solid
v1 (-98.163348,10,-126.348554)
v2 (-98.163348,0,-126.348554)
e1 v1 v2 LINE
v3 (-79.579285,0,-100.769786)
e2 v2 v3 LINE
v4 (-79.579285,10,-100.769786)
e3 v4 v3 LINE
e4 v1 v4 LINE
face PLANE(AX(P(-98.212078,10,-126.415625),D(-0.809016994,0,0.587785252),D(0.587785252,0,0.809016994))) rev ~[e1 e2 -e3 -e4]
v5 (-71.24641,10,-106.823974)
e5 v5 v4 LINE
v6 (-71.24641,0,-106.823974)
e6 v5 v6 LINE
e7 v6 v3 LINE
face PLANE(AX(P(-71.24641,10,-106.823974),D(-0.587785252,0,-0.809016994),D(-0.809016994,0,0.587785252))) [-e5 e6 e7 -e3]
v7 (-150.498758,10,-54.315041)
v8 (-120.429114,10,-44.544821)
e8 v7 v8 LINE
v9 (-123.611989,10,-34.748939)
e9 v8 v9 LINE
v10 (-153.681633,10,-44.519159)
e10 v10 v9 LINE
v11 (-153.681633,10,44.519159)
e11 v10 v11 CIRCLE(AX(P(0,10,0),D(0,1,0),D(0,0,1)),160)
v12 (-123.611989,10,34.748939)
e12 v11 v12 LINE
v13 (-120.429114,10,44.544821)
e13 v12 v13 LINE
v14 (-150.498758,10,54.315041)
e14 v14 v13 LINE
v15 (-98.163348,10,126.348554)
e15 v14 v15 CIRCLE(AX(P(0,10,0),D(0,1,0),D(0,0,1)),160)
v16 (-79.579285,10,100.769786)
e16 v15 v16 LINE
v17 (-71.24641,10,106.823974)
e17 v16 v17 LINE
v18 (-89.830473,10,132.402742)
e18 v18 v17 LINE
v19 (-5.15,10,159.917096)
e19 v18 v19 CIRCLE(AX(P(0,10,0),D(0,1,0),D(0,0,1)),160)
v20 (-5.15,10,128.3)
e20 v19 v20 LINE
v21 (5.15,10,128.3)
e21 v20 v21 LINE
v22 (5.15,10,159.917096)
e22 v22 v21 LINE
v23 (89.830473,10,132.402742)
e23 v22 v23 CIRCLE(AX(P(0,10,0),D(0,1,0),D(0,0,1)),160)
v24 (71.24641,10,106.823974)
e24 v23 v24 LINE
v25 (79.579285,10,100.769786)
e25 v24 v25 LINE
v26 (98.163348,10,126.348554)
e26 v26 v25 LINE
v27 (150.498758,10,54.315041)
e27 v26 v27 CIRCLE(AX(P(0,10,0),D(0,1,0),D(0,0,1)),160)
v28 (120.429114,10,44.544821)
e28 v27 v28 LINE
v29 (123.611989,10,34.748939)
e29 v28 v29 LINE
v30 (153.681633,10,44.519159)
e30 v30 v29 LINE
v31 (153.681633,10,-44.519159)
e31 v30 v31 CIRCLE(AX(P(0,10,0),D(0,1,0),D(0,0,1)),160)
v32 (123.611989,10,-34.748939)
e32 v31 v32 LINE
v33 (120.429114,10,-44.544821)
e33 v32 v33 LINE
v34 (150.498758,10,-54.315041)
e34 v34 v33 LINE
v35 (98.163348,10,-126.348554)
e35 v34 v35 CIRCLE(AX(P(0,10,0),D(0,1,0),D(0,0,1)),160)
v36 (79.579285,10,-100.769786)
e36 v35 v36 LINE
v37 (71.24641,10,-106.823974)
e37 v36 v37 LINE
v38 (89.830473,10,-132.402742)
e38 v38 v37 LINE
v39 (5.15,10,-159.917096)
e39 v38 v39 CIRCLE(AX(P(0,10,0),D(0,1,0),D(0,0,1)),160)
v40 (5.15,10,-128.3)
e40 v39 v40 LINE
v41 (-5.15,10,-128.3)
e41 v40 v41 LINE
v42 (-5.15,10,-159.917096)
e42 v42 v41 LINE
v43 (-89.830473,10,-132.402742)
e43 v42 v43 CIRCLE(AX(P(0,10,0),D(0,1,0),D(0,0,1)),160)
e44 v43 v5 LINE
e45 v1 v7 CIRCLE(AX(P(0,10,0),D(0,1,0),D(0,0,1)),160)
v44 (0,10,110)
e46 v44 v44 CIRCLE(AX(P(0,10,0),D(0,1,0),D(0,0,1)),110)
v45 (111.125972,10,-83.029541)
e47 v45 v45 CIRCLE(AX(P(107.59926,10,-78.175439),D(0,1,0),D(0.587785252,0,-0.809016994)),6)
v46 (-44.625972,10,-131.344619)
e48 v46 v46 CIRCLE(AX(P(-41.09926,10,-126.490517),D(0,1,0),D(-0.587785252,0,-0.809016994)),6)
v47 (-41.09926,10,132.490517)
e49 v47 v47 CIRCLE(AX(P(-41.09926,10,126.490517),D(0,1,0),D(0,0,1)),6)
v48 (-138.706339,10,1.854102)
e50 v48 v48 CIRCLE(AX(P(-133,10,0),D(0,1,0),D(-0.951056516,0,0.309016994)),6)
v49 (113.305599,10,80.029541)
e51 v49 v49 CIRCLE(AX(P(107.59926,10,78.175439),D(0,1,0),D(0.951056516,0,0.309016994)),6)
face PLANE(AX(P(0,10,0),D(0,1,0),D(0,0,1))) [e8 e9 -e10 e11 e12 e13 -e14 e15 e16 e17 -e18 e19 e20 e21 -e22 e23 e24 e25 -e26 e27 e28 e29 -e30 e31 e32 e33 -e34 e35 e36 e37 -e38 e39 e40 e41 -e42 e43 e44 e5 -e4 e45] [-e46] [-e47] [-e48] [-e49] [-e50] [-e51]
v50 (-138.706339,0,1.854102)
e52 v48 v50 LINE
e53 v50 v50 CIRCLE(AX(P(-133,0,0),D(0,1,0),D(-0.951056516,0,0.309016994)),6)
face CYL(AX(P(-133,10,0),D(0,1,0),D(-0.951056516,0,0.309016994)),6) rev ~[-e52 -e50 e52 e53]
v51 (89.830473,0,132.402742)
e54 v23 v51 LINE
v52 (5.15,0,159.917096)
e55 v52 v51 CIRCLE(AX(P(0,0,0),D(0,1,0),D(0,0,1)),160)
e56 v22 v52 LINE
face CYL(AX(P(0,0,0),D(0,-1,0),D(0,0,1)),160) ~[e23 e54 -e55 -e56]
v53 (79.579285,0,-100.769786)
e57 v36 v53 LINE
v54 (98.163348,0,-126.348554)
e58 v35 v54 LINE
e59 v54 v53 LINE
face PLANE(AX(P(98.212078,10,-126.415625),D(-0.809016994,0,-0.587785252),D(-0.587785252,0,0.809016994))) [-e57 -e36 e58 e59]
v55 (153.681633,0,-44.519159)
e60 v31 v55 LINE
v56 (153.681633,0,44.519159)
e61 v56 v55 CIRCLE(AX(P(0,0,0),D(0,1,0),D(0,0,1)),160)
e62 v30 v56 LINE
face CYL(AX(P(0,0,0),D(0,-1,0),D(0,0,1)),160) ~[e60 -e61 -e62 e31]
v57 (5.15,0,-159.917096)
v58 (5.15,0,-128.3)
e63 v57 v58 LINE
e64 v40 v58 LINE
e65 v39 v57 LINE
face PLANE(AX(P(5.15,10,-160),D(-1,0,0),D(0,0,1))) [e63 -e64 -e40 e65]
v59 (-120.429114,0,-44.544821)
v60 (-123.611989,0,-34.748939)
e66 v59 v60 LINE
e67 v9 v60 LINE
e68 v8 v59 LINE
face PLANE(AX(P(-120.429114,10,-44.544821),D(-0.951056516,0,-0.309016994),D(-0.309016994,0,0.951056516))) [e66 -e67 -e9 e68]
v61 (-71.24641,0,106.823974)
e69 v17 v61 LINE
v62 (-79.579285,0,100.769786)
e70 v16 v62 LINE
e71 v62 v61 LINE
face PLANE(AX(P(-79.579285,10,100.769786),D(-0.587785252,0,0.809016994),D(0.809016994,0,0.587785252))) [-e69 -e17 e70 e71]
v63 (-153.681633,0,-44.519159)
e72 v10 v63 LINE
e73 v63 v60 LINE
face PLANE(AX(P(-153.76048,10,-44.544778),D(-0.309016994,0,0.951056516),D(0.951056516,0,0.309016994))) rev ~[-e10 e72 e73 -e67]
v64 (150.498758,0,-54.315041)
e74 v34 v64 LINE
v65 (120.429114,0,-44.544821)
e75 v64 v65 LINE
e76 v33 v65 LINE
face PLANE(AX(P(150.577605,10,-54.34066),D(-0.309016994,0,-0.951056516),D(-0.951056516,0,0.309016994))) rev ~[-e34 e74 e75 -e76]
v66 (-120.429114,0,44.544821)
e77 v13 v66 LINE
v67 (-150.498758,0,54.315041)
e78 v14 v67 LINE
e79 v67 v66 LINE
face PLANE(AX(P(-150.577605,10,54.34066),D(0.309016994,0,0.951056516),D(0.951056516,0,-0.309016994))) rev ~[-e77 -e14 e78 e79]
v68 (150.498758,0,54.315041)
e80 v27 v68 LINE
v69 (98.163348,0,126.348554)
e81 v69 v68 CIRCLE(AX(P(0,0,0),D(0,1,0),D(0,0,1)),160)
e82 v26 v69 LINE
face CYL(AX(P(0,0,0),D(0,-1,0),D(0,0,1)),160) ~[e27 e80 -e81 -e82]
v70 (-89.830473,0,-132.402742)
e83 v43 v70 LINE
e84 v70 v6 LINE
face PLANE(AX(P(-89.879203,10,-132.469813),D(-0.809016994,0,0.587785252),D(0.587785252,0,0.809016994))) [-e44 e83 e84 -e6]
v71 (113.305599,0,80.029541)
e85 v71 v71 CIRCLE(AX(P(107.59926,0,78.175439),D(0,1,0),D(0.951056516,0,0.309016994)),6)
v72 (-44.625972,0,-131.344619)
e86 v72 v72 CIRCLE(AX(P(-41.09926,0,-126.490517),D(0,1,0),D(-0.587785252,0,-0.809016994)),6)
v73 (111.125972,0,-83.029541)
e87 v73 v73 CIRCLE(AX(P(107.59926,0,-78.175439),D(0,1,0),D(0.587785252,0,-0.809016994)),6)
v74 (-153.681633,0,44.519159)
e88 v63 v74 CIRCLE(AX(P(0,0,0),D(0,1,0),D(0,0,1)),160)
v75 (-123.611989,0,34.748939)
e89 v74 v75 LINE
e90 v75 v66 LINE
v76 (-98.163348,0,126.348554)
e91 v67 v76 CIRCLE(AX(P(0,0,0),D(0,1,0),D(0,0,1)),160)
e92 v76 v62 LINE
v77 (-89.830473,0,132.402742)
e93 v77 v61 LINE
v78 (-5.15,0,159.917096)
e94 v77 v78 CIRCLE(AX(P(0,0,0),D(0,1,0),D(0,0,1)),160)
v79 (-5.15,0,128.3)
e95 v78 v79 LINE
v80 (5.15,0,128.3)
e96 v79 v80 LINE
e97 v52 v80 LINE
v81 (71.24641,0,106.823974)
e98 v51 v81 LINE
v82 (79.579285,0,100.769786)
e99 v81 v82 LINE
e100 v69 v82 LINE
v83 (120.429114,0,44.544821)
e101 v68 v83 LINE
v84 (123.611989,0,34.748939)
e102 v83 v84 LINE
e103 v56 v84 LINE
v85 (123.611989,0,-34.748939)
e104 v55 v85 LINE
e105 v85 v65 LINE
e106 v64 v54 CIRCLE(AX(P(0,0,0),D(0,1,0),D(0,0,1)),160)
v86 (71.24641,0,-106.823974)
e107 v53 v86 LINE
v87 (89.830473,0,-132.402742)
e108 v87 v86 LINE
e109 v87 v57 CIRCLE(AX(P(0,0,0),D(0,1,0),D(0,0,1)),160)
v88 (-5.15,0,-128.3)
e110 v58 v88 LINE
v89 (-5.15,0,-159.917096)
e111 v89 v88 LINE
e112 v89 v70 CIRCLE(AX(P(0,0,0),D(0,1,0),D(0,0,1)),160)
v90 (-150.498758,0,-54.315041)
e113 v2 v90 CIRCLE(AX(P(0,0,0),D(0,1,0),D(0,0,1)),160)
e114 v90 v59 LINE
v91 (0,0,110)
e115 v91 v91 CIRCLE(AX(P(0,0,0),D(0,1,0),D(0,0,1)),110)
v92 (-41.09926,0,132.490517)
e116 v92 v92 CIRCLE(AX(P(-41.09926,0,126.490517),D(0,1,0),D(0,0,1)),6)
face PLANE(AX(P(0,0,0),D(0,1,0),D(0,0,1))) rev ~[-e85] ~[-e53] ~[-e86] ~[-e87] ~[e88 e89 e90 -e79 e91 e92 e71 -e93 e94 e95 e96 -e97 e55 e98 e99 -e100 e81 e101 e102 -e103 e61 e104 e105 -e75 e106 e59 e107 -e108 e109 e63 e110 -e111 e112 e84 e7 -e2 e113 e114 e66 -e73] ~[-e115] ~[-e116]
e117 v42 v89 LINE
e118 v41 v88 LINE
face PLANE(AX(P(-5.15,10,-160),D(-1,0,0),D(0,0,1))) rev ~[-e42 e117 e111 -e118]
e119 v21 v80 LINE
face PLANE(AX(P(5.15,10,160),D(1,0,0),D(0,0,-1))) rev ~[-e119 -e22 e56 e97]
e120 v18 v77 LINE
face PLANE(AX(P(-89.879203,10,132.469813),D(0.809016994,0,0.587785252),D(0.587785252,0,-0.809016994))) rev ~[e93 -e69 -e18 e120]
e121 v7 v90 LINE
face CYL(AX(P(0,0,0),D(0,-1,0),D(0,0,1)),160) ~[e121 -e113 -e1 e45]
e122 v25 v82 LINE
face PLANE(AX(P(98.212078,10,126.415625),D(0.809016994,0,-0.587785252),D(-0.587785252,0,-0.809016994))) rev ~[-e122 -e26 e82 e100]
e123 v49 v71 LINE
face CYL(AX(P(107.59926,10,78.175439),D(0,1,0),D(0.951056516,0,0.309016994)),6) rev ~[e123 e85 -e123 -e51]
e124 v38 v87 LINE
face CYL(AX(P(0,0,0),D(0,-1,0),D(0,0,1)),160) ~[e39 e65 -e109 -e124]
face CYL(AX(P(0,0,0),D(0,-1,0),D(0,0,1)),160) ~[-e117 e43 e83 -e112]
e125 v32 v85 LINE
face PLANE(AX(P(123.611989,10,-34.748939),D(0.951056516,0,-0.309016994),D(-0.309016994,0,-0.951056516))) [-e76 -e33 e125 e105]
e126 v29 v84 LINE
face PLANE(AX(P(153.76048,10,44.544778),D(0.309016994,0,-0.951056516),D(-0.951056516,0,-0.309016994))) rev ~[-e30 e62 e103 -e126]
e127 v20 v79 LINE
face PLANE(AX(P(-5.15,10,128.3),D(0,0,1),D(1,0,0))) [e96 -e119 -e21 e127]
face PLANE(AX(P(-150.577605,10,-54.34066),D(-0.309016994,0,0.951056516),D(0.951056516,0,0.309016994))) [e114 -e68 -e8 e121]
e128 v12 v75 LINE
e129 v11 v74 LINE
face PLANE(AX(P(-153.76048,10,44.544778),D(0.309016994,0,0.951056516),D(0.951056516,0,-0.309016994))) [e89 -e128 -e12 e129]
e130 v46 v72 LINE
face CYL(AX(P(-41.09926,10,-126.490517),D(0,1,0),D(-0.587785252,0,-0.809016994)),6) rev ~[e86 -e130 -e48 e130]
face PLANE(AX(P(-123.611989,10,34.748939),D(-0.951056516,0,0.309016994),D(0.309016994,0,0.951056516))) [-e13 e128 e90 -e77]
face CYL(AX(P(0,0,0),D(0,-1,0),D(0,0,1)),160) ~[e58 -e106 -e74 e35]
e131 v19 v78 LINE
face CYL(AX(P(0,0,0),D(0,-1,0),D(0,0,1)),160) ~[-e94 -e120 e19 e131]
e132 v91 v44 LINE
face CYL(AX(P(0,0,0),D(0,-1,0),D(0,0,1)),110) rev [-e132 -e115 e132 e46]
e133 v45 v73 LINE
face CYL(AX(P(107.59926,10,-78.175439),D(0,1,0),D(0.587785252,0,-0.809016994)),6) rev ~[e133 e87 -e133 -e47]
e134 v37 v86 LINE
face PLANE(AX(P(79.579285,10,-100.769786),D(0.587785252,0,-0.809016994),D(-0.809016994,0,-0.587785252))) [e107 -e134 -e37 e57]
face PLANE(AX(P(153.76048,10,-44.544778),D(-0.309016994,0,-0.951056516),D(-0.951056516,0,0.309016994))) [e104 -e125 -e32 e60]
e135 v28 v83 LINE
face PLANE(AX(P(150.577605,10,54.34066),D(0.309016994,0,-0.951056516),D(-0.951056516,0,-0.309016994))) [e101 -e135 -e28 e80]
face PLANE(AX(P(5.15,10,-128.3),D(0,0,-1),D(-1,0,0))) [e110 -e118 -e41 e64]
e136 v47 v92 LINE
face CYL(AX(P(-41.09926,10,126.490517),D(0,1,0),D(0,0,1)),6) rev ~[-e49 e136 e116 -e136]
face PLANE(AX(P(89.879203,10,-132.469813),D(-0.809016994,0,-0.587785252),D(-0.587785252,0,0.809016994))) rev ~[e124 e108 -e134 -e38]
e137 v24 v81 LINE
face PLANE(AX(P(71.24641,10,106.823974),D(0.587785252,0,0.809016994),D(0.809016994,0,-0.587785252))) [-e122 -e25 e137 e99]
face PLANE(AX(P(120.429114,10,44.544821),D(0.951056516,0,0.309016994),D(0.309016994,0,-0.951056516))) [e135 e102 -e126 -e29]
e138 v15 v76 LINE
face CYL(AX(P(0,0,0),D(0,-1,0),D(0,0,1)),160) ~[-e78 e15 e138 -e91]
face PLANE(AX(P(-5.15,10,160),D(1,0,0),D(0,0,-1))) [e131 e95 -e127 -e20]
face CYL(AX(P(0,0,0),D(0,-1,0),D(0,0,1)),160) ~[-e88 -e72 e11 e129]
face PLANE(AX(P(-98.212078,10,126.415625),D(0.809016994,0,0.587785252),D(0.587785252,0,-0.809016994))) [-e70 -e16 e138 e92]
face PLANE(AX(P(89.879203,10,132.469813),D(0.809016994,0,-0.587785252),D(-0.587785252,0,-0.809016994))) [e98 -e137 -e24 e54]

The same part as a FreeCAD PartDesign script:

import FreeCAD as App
import Part
import Sketcher
from FreeCAD import Vector

doc = App.newDocument("Part")
body = doc.addObject("PartDesign::Body", "Body")

sketch1 = doc.addObject("Sketcher::SketchObject", "Sketch")
body.addObject(sketch1)
sketch1.AttachmentSupport = (doc.XZ_Plane, [""])
sketch1.MapMode = "FlatFace"
sketch1.addGeometry(Part.Circle(Vector(0, 0, 0), Vector(0, 0, 1), 160), False)
sketch1.addGeometry(Part.Circle(Vector(0, 0, 0), Vector(0, 0, 1), 110), False)
sketch1.addConstraint(Sketcher.Constraint("Coincident", 0, 3, -1, 1))
sketch1.addConstraint(Sketcher.Constraint("Coincident", 1, 3, -1, 1))
sketch1.addConstraint(Sketcher.Constraint("Diameter", 0, 320.0))
sketch1.addConstraint(Sketcher.Constraint("Diameter", 1, 220.0))
pad1 = doc.addObject("PartDesign::Pad", "Pad")
body.addObject(pad1)
pad1.Profile = sketch1
pad1.Length = 10
pad1.Reversed = True

sketch2 = doc.addObject("Sketcher::SketchObject", "Sketch001")
body.addObject(sketch2)
sketch2.AttachmentSupport = (doc.XZ_Plane, [""])
sketch2.MapMode = "FlatFace"
sketch2.AttachmentOffset = App.Placement(Vector(0, 0, -10), App.Rotation())
sketch2.addGeometry(Part.LineSegment(Vector(-5.15, 128.3, 0), Vector(-5.15, 160, 0)), False)
sketch2.addGeometry(Part.LineSegment(Vector(-5.15, 160, 0), Vector(5.15, 160, 0)), False)
sketch2.addGeometry(Part.LineSegment(Vector(5.15, 160, 0), Vector(5.15, 128.3, 0)), False)
sketch2.addGeometry(Part.LineSegment(Vector(5.15, 128.3, 0), Vector(-5.15, 128.3, 0)), False)
sketch2.addConstraint(Sketcher.Constraint("Coincident", 0, 2, 1, 1))
sketch2.addConstraint(Sketcher.Constraint("Coincident", 1, 2, 2, 1))
sketch2.addConstraint(Sketcher.Constraint("Coincident", 2, 2, 3, 1))
sketch2.addConstraint(Sketcher.Constraint("Coincident", 3, 2, 0, 1))
sketch2.addConstraint(Sketcher.Constraint("Vertical", 0))
sketch2.addConstraint(Sketcher.Constraint("Horizontal", 1))
sketch2.addConstraint(Sketcher.Constraint("Vertical", 2))
sketch2.addConstraint(Sketcher.Constraint("Horizontal", 3))
sketch2.addConstraint(Sketcher.Constraint("DistanceX", 1, 1, 1, 2, 10.3))
sketch2.addConstraint(Sketcher.Constraint("DistanceY", 0, 1, 0, 2, 31.7))
sketch2.addConstraint(Sketcher.Constraint("DistanceY", -1, 1, 0, 2, 160.0))
sketch2.addConstraint(Sketcher.Constraint("DistanceX", 0, 2, -1, 1, 5.15))
pocket1 = doc.addObject("PartDesign::Pocket", "Pocket")
body.addObject(pocket1)
pocket1.Profile = sketch2
pocket1.Length = 10
pocket1.Reversed = True

sketch3 = doc.addObject("Sketcher::SketchObject", "Sketch002")
body.addObject(sketch3)
sketch3.AttachmentSupport = (doc.XZ_Plane, [""])
sketch3.MapMode = "FlatFace"
sketch3.AttachmentOffset = App.Placement(Vector(0, 0, -10), App.Rotation())
sketch3.addGeometry(Part.Circle(Vector(-41.09926, 126.490517, 0), Vector(0, 0, 1), 6), False)
sketch3.addConstraint(Sketcher.Constraint("Diameter", 0, 12.0))
sketch3.addConstraint(Sketcher.Constraint("DistanceX", 0, 3, -1, 1, 41.09926))
sketch3.addConstraint(Sketcher.Constraint("DistanceY", -1, 1, 0, 3, 126.490517))
pocket2 = doc.addObject("PartDesign::Pocket", "Pocket001")
body.addObject(pocket2)
pocket2.Profile = sketch3
pocket2.Type = "ThroughAll"
pocket2.Reversed = True
doc.recompute()

polarpattern = doc.addObject("PartDesign::PolarPattern", "PolarPattern")
body.addObject(polarpattern)
polarpattern.Originals = [pocket1]
polarpattern.Axis = (doc.Y_Axis, [""])
polarpattern.Angle = 360
polarpattern.Occurrences = 10
body.Tip = polarpattern
doc.recompute()

polarpattern2 = doc.addObject("PartDesign::PolarPattern", "PolarPattern001")
body.addObject(polarpattern2)
polarpattern2.Originals = [pocket2]
polarpattern2.Axis = (doc.Y_Axis, [""])
polarpattern2.Angle = 360
polarpattern2.Occurrences = 5
body.Tip = polarpattern2

doc.recompute()
